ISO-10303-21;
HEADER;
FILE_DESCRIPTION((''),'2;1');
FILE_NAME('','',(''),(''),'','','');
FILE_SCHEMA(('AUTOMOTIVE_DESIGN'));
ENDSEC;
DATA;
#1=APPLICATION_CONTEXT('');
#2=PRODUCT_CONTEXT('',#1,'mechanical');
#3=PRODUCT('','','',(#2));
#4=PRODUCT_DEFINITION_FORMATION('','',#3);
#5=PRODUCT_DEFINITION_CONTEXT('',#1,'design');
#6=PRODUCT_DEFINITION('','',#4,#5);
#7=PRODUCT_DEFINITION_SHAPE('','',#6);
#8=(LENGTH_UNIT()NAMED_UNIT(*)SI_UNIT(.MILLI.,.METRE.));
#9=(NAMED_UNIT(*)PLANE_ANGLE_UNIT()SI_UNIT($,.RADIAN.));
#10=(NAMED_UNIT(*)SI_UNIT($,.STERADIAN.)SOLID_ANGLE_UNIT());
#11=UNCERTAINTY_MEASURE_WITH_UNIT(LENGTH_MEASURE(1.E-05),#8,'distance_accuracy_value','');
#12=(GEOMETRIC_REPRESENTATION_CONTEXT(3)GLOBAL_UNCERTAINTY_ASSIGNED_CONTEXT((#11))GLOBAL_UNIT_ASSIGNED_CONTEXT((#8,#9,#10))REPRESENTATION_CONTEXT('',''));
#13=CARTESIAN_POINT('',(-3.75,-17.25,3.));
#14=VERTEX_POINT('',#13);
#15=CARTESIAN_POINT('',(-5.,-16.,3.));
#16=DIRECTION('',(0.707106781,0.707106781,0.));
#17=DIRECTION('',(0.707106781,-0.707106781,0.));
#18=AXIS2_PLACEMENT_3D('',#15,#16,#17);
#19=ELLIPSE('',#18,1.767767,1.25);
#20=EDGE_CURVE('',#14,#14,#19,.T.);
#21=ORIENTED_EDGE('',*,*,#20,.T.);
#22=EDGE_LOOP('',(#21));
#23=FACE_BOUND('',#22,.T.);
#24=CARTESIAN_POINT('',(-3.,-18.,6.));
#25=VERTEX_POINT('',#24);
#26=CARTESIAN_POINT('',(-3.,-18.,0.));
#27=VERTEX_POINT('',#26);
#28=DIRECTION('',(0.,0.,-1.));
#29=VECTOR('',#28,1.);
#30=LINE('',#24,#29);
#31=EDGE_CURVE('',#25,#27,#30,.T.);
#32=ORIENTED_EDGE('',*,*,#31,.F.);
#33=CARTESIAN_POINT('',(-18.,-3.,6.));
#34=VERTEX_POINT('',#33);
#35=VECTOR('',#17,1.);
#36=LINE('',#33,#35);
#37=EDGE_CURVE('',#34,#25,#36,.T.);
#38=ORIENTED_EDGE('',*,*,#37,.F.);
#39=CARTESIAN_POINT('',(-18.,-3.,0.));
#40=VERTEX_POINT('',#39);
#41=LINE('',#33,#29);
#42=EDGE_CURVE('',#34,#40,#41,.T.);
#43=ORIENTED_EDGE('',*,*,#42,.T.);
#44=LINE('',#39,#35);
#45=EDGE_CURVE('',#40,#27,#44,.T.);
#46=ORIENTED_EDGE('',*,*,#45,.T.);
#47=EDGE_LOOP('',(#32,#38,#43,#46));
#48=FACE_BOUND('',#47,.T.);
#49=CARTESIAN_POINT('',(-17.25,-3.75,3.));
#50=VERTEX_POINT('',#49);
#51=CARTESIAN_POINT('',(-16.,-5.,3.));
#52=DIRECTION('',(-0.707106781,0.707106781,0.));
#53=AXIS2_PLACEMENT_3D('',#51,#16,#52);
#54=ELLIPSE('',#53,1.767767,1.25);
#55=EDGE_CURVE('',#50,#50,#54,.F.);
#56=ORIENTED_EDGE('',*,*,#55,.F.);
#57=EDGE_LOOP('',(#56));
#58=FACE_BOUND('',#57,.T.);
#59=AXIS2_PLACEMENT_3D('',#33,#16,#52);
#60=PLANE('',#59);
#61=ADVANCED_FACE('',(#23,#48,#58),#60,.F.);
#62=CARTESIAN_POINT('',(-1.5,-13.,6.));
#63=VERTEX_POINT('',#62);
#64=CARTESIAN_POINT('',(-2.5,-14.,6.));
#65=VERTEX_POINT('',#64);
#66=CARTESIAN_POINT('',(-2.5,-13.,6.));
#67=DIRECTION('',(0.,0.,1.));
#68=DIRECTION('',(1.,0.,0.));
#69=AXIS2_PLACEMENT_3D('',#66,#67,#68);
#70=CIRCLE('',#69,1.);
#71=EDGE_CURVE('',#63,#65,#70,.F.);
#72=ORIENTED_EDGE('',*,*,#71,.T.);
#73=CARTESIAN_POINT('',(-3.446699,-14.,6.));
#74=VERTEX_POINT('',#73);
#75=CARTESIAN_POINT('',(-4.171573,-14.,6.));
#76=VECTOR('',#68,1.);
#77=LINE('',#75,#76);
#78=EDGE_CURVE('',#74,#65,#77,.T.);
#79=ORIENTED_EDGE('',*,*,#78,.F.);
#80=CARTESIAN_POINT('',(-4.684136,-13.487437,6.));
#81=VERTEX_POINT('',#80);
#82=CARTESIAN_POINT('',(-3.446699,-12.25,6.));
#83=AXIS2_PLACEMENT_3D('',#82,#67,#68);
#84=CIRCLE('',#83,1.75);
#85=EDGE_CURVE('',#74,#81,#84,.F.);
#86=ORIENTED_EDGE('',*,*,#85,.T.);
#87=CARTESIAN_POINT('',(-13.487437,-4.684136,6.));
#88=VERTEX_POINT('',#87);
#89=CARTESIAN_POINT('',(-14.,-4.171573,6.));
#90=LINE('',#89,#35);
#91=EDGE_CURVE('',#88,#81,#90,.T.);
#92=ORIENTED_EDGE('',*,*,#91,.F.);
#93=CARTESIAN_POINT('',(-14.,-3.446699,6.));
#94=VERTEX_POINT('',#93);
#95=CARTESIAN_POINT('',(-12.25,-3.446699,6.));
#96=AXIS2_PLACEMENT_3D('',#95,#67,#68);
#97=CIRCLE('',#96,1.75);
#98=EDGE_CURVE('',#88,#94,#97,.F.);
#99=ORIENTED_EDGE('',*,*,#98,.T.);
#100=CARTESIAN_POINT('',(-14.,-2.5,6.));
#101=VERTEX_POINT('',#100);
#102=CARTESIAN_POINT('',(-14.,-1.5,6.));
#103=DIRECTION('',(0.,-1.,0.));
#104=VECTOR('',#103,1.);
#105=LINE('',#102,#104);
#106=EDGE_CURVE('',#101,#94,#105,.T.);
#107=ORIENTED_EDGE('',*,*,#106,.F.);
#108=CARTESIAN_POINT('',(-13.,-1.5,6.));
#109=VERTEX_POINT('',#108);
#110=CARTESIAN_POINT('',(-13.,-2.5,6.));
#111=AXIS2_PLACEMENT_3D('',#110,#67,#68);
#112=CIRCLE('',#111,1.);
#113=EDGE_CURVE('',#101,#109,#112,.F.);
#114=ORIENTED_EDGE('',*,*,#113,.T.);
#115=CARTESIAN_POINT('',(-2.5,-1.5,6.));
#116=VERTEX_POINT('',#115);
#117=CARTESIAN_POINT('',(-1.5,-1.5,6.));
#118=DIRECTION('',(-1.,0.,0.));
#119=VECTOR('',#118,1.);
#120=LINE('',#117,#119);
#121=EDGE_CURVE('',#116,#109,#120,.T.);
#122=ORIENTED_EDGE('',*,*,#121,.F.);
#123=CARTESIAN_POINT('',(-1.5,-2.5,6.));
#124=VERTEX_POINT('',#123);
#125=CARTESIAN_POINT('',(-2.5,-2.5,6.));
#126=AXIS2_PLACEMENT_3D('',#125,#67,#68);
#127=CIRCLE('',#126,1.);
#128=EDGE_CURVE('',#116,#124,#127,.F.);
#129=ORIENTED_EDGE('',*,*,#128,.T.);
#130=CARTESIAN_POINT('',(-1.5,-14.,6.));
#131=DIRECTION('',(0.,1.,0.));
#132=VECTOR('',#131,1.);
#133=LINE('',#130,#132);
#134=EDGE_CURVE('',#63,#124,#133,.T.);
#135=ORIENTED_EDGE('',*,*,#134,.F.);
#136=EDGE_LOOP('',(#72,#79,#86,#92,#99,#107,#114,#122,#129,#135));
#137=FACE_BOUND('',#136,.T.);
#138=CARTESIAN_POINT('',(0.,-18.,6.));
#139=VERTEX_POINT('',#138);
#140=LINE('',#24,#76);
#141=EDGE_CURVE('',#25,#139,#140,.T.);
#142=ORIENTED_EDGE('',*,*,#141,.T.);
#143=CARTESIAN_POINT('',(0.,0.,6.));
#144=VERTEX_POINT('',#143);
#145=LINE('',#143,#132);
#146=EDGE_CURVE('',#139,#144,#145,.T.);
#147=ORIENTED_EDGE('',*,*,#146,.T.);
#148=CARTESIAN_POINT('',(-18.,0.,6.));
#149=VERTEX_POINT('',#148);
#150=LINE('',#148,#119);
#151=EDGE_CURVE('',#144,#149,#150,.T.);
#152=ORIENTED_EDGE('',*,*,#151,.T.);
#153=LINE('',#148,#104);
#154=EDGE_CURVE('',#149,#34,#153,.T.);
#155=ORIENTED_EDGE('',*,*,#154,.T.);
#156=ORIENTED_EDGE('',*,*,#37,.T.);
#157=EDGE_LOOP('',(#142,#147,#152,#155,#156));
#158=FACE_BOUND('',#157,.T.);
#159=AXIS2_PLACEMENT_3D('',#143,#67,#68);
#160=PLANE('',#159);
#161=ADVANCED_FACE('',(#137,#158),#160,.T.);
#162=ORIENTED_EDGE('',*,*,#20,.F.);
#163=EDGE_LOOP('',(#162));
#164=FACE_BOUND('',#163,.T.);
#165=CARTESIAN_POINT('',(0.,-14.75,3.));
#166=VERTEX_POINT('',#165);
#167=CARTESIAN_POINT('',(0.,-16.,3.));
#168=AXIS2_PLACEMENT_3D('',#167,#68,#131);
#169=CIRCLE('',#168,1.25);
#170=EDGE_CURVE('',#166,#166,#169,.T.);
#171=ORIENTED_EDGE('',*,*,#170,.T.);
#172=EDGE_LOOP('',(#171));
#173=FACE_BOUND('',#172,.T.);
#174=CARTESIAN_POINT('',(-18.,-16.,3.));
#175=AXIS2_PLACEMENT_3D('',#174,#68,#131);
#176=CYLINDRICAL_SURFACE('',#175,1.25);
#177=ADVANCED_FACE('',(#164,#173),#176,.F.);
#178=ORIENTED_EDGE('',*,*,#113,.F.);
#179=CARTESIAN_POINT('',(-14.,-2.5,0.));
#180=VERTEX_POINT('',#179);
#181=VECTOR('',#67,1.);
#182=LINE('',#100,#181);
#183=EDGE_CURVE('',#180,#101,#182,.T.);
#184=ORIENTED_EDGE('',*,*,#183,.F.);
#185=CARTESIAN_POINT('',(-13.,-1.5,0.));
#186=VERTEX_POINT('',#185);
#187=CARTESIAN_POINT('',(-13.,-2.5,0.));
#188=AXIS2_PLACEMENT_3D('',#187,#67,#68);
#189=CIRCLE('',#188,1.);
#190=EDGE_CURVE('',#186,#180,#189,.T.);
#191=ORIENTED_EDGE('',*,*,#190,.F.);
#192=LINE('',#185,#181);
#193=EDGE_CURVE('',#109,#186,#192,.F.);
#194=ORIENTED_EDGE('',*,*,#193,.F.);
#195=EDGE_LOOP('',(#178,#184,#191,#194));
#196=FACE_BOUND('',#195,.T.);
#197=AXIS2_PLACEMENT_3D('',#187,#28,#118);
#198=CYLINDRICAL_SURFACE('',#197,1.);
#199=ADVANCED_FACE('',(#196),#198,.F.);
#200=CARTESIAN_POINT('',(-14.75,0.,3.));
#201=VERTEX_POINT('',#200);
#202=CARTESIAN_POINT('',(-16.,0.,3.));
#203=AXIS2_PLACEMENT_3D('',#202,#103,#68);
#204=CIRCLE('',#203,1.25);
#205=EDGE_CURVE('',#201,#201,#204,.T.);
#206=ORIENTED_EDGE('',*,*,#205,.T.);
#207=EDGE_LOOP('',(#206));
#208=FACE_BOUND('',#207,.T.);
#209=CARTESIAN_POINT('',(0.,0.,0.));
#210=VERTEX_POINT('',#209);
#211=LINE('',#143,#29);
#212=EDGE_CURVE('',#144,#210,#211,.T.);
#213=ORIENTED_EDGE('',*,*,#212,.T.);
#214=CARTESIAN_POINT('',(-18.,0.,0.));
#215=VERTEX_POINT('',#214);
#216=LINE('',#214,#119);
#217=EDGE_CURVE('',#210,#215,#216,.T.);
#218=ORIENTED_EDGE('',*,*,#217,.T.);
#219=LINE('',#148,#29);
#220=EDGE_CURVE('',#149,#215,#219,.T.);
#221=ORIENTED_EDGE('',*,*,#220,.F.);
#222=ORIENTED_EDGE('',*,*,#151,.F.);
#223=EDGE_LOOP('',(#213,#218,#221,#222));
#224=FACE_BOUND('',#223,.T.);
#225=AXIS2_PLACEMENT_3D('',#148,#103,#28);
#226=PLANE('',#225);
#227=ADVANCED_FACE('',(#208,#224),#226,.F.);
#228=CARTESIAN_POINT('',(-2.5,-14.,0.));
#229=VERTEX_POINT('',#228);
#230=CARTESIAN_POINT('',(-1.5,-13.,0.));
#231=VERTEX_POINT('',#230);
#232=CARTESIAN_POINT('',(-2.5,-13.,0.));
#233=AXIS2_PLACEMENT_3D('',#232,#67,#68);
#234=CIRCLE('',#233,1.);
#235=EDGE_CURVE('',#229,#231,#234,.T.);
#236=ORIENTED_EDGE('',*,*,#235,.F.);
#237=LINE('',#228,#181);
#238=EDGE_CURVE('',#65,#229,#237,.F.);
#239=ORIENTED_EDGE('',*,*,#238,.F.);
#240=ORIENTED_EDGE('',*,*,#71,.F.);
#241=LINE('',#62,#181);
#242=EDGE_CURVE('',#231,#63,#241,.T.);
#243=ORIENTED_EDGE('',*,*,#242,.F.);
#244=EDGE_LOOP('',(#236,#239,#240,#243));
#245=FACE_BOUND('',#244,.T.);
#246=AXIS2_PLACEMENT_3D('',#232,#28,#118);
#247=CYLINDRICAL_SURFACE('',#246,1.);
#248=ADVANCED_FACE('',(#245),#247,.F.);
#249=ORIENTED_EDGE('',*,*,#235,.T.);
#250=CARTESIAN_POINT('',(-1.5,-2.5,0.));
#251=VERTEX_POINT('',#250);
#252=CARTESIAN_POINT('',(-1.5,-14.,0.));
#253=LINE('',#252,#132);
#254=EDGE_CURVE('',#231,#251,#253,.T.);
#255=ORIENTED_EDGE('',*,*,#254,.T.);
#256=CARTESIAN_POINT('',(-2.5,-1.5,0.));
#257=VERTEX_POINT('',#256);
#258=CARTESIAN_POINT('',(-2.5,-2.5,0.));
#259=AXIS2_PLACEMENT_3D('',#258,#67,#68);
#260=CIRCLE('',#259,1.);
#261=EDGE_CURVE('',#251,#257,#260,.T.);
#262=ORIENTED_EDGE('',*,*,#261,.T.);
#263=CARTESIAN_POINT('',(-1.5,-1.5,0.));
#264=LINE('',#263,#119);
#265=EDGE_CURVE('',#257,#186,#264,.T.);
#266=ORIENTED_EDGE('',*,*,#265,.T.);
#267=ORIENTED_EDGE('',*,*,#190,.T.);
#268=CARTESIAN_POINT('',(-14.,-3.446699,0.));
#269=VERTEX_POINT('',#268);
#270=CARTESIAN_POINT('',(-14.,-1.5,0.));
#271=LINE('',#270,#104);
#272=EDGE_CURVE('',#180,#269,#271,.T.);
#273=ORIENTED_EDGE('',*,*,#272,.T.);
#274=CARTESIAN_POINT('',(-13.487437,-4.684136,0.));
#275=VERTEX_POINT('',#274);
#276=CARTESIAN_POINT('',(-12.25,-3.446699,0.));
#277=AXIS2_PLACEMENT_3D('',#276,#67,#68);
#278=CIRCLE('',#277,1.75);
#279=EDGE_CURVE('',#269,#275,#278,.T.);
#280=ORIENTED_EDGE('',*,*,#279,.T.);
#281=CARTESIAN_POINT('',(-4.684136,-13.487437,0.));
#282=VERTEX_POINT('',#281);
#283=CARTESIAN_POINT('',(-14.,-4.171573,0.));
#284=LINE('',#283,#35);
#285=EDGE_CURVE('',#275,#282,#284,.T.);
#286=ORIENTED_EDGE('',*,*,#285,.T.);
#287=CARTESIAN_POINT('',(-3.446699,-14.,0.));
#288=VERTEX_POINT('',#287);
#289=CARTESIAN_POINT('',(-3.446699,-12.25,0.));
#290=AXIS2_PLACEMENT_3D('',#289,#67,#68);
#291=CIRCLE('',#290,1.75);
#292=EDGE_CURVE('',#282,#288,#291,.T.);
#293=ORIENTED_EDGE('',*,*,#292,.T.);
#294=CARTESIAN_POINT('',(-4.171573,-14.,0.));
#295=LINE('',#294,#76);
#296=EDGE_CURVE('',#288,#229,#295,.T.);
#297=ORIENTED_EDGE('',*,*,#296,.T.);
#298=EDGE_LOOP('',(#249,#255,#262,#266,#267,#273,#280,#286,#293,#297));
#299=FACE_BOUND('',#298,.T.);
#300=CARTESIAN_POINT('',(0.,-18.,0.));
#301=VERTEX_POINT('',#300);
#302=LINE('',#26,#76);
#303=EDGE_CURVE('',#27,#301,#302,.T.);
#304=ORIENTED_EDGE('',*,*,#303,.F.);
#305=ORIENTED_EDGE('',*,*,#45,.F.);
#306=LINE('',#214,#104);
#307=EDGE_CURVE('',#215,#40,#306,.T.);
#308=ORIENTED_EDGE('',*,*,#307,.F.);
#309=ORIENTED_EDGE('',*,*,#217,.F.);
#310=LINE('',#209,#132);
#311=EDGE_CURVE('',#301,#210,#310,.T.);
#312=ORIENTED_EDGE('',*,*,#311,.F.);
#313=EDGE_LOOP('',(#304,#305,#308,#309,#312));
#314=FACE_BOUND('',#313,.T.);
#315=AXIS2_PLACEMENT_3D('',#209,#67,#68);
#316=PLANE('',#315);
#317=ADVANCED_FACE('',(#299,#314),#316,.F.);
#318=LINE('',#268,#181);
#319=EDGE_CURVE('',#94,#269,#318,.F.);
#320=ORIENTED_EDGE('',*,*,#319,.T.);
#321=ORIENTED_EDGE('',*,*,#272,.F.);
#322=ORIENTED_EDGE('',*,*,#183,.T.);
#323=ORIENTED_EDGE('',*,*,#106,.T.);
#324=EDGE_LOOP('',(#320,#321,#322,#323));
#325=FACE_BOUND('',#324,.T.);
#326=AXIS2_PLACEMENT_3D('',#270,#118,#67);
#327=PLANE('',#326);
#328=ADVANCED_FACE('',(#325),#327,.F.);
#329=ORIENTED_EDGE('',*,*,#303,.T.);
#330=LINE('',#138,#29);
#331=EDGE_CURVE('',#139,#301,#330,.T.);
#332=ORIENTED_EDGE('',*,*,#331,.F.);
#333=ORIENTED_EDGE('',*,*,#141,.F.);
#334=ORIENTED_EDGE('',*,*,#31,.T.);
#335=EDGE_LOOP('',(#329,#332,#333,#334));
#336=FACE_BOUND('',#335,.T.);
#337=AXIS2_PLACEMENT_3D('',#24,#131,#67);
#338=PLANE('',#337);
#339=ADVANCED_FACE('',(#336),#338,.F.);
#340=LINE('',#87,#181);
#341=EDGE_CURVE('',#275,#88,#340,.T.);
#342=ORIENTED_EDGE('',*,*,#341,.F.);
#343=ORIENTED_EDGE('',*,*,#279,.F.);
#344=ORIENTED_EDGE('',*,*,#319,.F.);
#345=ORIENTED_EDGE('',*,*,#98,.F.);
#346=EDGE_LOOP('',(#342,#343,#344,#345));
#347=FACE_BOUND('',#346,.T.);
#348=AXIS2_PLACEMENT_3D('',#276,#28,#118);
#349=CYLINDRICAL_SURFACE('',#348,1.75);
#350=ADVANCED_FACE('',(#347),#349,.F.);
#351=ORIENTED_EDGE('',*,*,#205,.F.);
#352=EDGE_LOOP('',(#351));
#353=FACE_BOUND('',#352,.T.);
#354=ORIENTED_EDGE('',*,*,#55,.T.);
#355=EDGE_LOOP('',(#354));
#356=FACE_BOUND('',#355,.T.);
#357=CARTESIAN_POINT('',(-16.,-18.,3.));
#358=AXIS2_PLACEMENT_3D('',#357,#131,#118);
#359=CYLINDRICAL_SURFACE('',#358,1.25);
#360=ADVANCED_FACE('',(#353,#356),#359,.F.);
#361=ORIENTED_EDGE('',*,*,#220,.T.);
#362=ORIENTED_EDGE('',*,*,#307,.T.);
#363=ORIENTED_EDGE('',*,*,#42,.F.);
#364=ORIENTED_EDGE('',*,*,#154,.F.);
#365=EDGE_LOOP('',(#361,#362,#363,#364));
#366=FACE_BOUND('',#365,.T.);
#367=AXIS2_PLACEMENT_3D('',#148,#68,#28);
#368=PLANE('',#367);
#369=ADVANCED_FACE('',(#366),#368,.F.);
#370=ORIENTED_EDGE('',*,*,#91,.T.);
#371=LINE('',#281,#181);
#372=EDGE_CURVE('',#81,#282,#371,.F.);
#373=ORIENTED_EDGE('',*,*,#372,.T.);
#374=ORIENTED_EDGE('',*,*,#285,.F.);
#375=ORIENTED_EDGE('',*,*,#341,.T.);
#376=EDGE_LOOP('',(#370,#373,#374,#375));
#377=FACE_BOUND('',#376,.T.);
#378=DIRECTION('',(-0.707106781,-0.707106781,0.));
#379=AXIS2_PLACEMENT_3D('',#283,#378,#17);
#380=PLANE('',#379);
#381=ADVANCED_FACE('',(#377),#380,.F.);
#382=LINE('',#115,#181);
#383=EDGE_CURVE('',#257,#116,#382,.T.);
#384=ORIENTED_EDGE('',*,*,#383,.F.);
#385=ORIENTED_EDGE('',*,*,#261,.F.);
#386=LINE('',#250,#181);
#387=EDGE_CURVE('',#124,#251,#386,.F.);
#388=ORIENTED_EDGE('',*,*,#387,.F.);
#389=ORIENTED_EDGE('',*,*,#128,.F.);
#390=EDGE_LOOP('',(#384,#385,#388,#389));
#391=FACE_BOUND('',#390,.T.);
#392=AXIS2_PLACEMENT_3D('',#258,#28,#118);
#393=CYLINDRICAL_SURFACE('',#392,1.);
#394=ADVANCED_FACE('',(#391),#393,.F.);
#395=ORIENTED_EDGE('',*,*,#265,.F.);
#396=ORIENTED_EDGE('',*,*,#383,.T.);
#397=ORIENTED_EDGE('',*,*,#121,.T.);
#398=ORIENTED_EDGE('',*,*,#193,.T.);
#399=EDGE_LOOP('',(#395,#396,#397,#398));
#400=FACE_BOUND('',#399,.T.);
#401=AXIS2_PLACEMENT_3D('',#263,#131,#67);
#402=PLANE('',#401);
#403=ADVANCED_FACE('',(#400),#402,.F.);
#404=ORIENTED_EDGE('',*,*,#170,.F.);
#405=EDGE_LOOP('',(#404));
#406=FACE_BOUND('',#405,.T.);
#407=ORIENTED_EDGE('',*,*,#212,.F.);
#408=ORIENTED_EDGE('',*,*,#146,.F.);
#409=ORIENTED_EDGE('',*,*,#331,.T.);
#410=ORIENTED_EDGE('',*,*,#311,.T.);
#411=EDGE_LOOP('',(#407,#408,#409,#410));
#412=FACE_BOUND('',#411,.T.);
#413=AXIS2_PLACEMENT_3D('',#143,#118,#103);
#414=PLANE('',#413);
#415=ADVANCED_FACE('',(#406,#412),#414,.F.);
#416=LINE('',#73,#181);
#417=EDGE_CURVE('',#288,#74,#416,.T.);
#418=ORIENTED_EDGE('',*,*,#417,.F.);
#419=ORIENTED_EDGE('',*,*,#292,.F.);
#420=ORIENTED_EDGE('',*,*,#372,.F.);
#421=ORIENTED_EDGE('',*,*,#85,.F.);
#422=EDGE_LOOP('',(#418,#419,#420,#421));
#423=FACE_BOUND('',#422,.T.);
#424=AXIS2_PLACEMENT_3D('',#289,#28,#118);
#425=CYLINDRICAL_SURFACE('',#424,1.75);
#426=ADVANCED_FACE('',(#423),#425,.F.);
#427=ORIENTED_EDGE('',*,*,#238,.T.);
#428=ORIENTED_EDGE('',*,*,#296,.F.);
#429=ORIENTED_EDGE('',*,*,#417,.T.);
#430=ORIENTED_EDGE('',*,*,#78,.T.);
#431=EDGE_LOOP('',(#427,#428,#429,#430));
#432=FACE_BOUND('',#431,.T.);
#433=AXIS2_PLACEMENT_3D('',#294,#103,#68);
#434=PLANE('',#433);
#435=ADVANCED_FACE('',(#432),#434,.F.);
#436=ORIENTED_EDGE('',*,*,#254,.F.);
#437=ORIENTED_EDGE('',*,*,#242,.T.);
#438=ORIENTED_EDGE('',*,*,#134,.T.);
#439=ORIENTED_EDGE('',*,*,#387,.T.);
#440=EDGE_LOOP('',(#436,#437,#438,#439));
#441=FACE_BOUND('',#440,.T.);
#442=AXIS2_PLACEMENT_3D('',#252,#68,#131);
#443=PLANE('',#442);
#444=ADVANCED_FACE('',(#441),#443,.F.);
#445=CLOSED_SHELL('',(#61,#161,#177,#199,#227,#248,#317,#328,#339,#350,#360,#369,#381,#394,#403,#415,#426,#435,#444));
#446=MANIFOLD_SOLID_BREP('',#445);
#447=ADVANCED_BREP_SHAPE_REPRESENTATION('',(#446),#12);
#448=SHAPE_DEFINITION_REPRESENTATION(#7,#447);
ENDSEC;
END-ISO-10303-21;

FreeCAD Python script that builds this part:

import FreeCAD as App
import Part
import Sketcher

V = App.Vector


def edges_at(feature, points):
    """Names of the edges that pass closest to the given points."""
    edges = feature.Shape.Edges
    near = lambda p: min(range(len(edges)), key=lambda i: edges[i].distToShape(Part.Vertex(*p))[0])
    return sorted({f"Edge{near(p) + 1}" for p in points})

doc = App.newDocument("Part")
body = doc.addObject("PartDesign::Body", "Body")

# Sketch on XY plane
sketch1 = body.newObject("Sketcher::SketchObject", "Sketch")
sketch1.AttachmentSupport = (doc.getObject("XY_Plane"), [""])
sketch1.MapMode = "FlatFace"
sketch1.addGeometry([
    Part.LineSegment(V(0, 0, 0), V(-18, 0, 0)),  # 0
    Part.LineSegment(V(-18, 0, 0), V(-18, -3, 0)),  # 1
    Part.LineSegment(V(-18, -3, 0), V(-3, -18, 0)),  # 2
    Part.LineSegment(V(-3, -18, 0), V(0, -18, 0)),  # 3
    Part.LineSegment(V(0, -18, 0), V(0, 0, 0)),  # 4
], False)
sketch1.addConstraint([
    Sketcher.Constraint("Coincident", 0, 2, 1, 1),
    Sketcher.Constraint("Coincident", 1, 2, 2, 1),
    Sketcher.Constraint("Coincident", 2, 2, 3, 1),
    Sketcher.Constraint("Coincident", 3, 2, 4, 1),
    Sketcher.Constraint("Coincident", 4, 2, 0, 1),
    Sketcher.Constraint("Horizontal", 0),
    Sketcher.Constraint("Vertical", 1),
    Sketcher.Constraint("Horizontal", 3),
    Sketcher.Constraint("Vertical", 4),
    Sketcher.Constraint("Coincident", 4, 2, -1, 1),
    Sketcher.Constraint("Equal", 3, 1),
    Sketcher.Constraint("Equal", 0, 4),
    Sketcher.Constraint("DistanceX", 0, 2, 0, 1, 18.0),
    Sketcher.Constraint("DistanceX", 3, 1, 3, 2, 3.0),
])
pad1 = body.newObject("PartDesign::Pad", "Pad")
pad1.Profile = sketch1
pad1.Length = 6

# Sketch on XY plane
sketch2 = body.newObject("Sketcher::SketchObject", "Sketch001")
sketch2.AttachmentSupport = (doc.getObject("XY_Plane"), [""])
sketch2.MapMode = "FlatFace"
sketch2.AttachmentOffset = App.Placement(V(0, 0, 6), App.Rotation())
sketch2.addGeometry([
    Part.LineSegment(V(-14, -1.5, 0), V(-14, -4.171573, 0)),  # 0
    Part.LineSegment(V(-14, -4.171573, 0), V(-4.171573, -14, 0)),  # 1
    Part.LineSegment(V(-4.171573, -14, 0), V(-1.5, -14, 0)),  # 2
    Part.LineSegment(V(-1.5, -14, 0), V(-1.5, -1.5, 0)),  # 3
    Part.LineSegment(V(-1.5, -1.5, 0), V(-14, -1.5, 0)),  # 4
], False)
sketch2.addConstraint([
    Sketcher.Constraint("Coincident", 0, 2, 1, 1),
    Sketcher.Constraint("Coincident", 1, 2, 2, 1),
    Sketcher.Constraint("Coincident", 2, 2, 3, 1),
    Sketcher.Constraint("Coincident", 3, 2, 4, 1),
    Sketcher.Constraint("Coincident", 4, 2, 0, 1),
    Sketcher.Constraint("Vertical", 0),
    Sketcher.Constraint("Horizontal", 2),
    Sketcher.Constraint("Vertical", 3),
    Sketcher.Constraint("Horizontal", 4),
    Sketcher.Constraint("Equal", 2, 0),
    Sketcher.Constraint("Equal", 4, 3),
    Sketcher.Constraint("DistanceX", 4, 2, 4, 1, 12.5),
    Sketcher.Constraint("DistanceX", 0, 2, -1, 1, 14.0),
    Sketcher.Constraint("DistanceY", 1, 2, -1, 1, 14.0),
    Sketcher.Constraint("DistanceX", 2, 1, 2, 2, 2.671573),
])
pocket1 = body.newObject("PartDesign::Pocket", "Pocket")
pocket1.Profile = sketch2
pocket1.Type = "ThroughAll"

# Sketch on YZ plane
sketch3 = body.newObject("Sketcher::SketchObject", "Sketch002")
sketch3.AttachmentSupport = (doc.getObject("YZ_Plane"), [""])
sketch3.MapMode = "FlatFace"
sketch3.addGeometry(Part.Circle(V(-16, 3, 0), V(0, 0, 1), 1.25), False)
sketch3.addConstraint([
    Sketcher.Constraint("Diameter", 0, 2.5),
    Sketcher.Constraint("DistanceX", 0, 3, -1, 1, 16.0),
    Sketcher.Constraint("DistanceY", -1, 1, 0, 3, 3.0),
])
pocket2 = body.newObject("PartDesign::Pocket", "Pocket001")
pocket2.Profile = sketch3
pocket2.Type = "ThroughAll"
doc.recompute()

datumplane = body.newObject("PartDesign::Plane", "DatumPlane")
datumplane.Placement = App.Placement(V(0, 0, 0), App.Rotation(V(0.707106781, 0.707106781, 0), V(0, 0, -1), V(-0.707106781, 0.707106781, 0), "ZXY"))
mirrored = body.newObject("PartDesign::Mirrored", "Mirrored")
mirrored.Originals = [pocket2]
mirrored.MirrorPlane = (datumplane, [""])
body.Tip = mirrored
doc.recompute()

fillet = body.newObject("PartDesign::Fillet", "Fillet")
fillet.Base = (mirrored, edges_at(mirrored, [(-1.5, -14, 3), (-14, -1.5, 3), (-1.5, -1.5, 3)]))
fillet.Radius = 1
doc.recompute()

fillet2 = body.newObject("PartDesign::Fillet", "Fillet001")
fillet2.Base = (fillet, edges_at(fillet, [(-4.172, -14, 3), (-14, -4.172, 3)]))
fillet2.Radius = 1.75

doc.recompute()
